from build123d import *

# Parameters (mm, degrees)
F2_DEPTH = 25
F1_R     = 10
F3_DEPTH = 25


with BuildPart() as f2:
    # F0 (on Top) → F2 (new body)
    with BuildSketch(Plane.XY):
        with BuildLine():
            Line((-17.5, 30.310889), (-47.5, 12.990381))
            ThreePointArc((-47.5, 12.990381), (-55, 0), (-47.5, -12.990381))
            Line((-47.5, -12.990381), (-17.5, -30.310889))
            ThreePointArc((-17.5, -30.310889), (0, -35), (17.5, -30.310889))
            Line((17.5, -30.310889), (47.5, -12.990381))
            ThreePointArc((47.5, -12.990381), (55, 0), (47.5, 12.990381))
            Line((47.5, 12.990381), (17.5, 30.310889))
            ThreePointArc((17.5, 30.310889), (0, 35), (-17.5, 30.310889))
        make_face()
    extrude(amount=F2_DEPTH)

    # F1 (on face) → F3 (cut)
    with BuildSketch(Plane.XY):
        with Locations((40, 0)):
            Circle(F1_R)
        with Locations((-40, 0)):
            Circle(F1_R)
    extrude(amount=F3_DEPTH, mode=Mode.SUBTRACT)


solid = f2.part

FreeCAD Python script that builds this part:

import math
import FreeCAD as App
import Part
import Sketcher

V = App.Vector
Q = App.Units.Quantity

doc = App.newDocument("Part")
body = doc.addObject("PartDesign::Body", "Body")

sketch1 = doc.addObject("Sketcher::SketchObject", "Sketch")
body.addObject(sketch1)
sketch1.AttachmentSupport = (doc.XY_Plane, [""])
sketch1.MapMode = "FlatFace"
sketch1.addGeometry(Part.LineSegment(V(-18, 30, 0), V(-48, 13, 0)), False)
sketch1.addGeometry(Part.ArcOfCircle(Part.Circle(V(-40, 0, 0), V(0, 0, 1), 15), math.radians(120), math.radians(240)), False)
sketch1.addGeometry(Part.LineSegment(V(-48, -13, 0), V(-18, -30, 0)), False)
sketch1.addGeometry(Part.ArcOfCircle(Part.Circle(V(0, 0, 0), V(0, 0, 1), 35), math.radians(-120), math.radians(-60)), False)
sketch1.addGeometry(Part.LineSegment(V(18, -30, 0), V(48, -13, 0)), False)
sketch1.addGeometry(Part.ArcOfCircle(Part.Circle(V(40, 0, 0), V(0, 0, 1), 15), math.radians(-60), math.radians(60)), False)
sketch1.addGeometry(Part.LineSegment(V(48, 13, 0), V(18, 30, 0)), False)
sketch1.addGeometry(Part.ArcOfCircle(Part.Circle(V(0, 0, 0), V(0, 0, 1), 35), math.radians(60), math.radians(120)), False)
sketch1.addConstraint(Sketcher.Constraint("Tangent", 0, 2, 1, 1))
sketch1.addConstraint(Sketcher.Constraint("Tangent", 1, 2, 2, 1))
sketch1.addConstraint(Sketcher.Constraint("Tangent", 2, 2, 3, 1))
sketch1.addConstraint(Sketcher.Constraint("Tangent", 3, 2, 4, 1))
sketch1.addConstraint(Sketcher.Constraint("Tangent", 4, 2, 5, 1))
sketch1.addConstraint(Sketcher.Constraint("Tangent", 5, 2, 6, 1))
sketch1.addConstraint(Sketcher.Constraint("Tangent", 6, 2, 7, 1))
sketch1.addConstraint(Sketcher.Constraint("Tangent", 7, 2, 0, 1))
sketch1.addConstraint(Sketcher.Constraint("Coincident", 3, 3, -1, 1))
sketch1.addConstraint(Sketcher.Constraint("Coincident", 7, 3, -1, 1))
sketch1.addConstraint(Sketcher.Constraint("Equal", 1, 5))
sketch1.addConstraint(Sketcher.Constraint("Equal", 3, 7))
sketch1.addConstraint(Sketcher.Constraint("Symmetric", 1, 3, 5, 3, -1, 1))
sketch1.addConstraint(Sketcher.Constraint("PointOnObject", 1, 3, -1))
sketch1.addConstraint(Sketcher.Constraint("Radius", 1, Q("15 mm")))
sketch1.addConstraint(Sketcher.Constraint("Radius", 3, Q("34.999999 mm")))
sketch1.addConstraint(Sketcher.Constraint("Angle", 0, Q("-150 deg")))
pad1 = doc.addObject("PartDesign::Pad", "Pad")
body.addObject(pad1)
pad1.Profile = sketch1
pad1.Length = 25

sketch2 = doc.addObject("Sketcher::SketchObject", "Sketch001")
body.addObject(sketch2)
sketch2.AttachmentSupport = (doc.XY_Plane, [""])
sketch2.MapMode = "FlatFace"
sketch2.addGeometry(Part.Circle(V(40, 0, 0), V(0, 0, 1), 10), False)
sketch2.addGeometry(Part.Circle(V(-40, 0, 0), V(0, 0, 1), 10), False)
sketch2.addConstraint(Sketcher.Constraint("Equal", 0, 1))
sketch2.addConstraint(Sketcher.Constraint("Symmetric", 0, 3, 1, 3, -1, 1))
sketch2.addConstraint(Sketcher.Constraint("PointOnObject", 0, 3, -1))
sketch2.addConstraint(Sketcher.Constraint("Diameter", 0, Q("20 mm")))
sketch2.addConstraint(Sketcher.Constraint("DistanceX", -1, 1, 0, 3, Q("40 mm")))
pocket1 = doc.addObject("PartDesign::Pocket", "Pocket")
body.addObject(pocket1)
pocket1.Profile = sketch2
pocket1.Length = 25
pocket1.Reversed = True

doc.recompute()
